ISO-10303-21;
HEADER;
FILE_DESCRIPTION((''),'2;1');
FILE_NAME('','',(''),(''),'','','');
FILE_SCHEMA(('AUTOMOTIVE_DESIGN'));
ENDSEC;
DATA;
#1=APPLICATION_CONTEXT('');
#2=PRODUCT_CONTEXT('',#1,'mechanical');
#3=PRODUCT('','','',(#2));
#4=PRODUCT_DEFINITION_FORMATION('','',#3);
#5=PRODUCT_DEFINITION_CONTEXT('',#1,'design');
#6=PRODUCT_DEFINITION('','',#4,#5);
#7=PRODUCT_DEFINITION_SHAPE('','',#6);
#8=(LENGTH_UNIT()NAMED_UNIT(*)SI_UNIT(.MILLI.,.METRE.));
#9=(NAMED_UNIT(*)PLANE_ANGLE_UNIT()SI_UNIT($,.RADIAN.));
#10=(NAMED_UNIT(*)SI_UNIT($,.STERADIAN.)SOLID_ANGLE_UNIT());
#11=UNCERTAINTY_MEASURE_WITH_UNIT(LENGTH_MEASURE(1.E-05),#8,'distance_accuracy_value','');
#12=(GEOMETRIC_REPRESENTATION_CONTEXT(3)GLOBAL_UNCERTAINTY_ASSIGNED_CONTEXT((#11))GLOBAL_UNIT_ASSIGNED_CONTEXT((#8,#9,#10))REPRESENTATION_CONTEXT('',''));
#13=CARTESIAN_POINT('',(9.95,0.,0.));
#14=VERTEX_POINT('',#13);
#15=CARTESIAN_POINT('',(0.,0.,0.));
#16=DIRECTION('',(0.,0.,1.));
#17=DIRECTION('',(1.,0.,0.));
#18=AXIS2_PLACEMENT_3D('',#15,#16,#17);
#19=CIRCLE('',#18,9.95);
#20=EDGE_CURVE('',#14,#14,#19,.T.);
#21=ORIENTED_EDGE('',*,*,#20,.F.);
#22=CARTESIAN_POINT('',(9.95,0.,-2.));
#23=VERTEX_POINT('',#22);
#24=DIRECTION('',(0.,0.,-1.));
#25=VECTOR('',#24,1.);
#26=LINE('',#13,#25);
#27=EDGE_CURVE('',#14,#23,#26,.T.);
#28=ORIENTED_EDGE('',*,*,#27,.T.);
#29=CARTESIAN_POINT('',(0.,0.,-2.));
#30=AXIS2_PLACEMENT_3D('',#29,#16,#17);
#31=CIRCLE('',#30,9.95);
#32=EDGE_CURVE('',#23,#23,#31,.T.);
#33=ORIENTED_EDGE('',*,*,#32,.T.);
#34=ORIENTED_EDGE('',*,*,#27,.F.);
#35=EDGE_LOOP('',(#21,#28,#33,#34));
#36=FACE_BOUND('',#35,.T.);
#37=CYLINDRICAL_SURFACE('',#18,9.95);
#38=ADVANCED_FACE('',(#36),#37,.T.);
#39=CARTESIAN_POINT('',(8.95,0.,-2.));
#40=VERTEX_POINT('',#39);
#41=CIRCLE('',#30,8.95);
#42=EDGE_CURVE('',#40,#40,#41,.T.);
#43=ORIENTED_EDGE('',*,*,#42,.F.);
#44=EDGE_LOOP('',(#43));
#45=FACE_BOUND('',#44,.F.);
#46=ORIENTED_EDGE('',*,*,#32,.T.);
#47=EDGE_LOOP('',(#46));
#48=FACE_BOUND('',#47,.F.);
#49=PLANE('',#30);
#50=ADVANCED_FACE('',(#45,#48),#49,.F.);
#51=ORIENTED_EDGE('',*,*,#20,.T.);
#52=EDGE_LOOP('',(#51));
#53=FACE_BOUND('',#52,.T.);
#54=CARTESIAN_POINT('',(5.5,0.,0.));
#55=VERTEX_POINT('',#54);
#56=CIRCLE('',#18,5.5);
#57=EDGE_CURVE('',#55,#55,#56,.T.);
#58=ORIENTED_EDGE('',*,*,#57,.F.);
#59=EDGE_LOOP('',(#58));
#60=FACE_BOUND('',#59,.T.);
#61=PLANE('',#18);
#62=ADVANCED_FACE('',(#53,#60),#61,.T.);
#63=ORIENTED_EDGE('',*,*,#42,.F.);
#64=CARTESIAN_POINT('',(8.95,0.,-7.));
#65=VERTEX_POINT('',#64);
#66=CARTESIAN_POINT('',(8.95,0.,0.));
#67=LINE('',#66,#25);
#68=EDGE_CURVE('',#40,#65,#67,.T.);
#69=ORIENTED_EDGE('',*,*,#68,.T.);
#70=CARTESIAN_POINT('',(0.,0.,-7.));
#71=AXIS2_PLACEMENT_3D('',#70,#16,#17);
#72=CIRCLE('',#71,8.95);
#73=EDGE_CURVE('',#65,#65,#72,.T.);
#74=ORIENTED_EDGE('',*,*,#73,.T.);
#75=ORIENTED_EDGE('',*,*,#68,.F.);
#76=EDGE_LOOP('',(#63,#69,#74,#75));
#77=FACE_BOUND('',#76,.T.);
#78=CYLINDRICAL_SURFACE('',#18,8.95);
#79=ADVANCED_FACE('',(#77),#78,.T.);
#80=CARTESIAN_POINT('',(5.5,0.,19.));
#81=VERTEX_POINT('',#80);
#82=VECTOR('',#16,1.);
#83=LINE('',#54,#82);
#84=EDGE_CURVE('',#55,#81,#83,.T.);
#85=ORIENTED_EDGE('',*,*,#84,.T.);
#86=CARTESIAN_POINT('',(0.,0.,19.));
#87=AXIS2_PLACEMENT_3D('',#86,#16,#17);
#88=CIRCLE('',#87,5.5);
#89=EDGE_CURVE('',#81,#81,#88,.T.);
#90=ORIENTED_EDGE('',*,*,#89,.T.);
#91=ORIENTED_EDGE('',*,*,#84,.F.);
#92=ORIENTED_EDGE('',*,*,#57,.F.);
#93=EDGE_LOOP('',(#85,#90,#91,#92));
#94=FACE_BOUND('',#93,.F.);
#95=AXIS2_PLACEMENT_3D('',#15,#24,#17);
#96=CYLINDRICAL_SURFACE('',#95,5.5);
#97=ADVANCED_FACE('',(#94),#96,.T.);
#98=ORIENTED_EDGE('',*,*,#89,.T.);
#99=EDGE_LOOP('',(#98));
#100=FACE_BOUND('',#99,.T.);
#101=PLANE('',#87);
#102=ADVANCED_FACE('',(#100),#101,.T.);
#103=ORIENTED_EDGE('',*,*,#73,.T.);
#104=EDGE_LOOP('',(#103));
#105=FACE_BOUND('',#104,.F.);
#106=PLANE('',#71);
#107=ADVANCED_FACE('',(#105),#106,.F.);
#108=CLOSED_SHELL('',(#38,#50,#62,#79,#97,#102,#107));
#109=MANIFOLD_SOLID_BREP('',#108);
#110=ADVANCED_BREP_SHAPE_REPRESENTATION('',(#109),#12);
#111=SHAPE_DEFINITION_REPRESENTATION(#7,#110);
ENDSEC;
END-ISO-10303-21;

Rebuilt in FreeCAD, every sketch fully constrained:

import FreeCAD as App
import Part
import Sketcher
from FreeCAD import Vector
Q = App.Units.Quantity

doc = App.newDocument("Part")
params = doc.addObject("Spreadsheet::Sheet", "Params")
for row, (alias, value) in enumerate([
    ("sketch1_diameter", "11 mm"),
    ("pad1_length", "19 mm"),
    ("sketch2_diameter", "19.9 mm"),
    ("pad2_length", "2 mm"),
    ("sketch3_diameter", "17.9 mm"),
    ("pad3_length", "7 mm"),
], start=1):
    params.set(f"A{row}", alias)
    params.set(f"B{row}", "=" + value)
    params.setAlias(f"B{row}", alias)

body = doc.addObject("PartDesign::Body", "Body")

sketch1 = body.newObject("Sketcher::SketchObject", "Sketch")
sketch1.AttachmentSupport = (doc.getObject("XY_Plane"), [""])
sketch1.MapMode = "FlatFace"
sketch1.addGeometry(Part.Circle(Vector(0, 0, 0), Vector(0, 0, 1), 6), False)
sketch1.addConstraint(Sketcher.Constraint("Coincident", 0, 3, -1, 1))
sketch1.addConstraint(Sketcher.Constraint("Diameter", 0, Q("11 mm")))
sketch1.setExpression("Constraints[1]", "Params.sketch1_diameter")
pad1 = body.newObject("PartDesign::Pad", "Pad")
pad1.Profile = sketch1
pad1.setExpression("Length", "Params.pad1_length")

sketch2 = body.newObject("Sketcher::SketchObject", "Sketch001")
sketch2.AttachmentSupport = (doc.getObject("XY_Plane"), [""])
sketch2.MapMode = "FlatFace"
sketch2.addGeometry(Part.Circle(Vector(0, 0, 0), Vector(0, 0, 1), 10), False)
sketch2.addConstraint(Sketcher.Constraint("Coincident", 0, 3, -1, 1))
sketch2.addConstraint(Sketcher.Constraint("Diameter", 0, Q("19.9 mm")))
sketch2.setExpression("Constraints[1]", "Params.sketch2_diameter")
pad2 = body.newObject("PartDesign::Pad", "Pad001")
pad2.Profile = sketch2
pad2.setExpression("Length", "Params.pad2_length")
pad2.Reversed = True

sketch3 = body.newObject("Sketcher::SketchObject", "Sketch002")
sketch3.AttachmentSupport = (doc.getObject("XY_Plane"), [""])
sketch3.MapMode = "FlatFace"
sketch3.addGeometry(Part.Circle(Vector(0, 0, 0), Vector(0, 0, 1), 9), False)
sketch3.addConstraint(Sketcher.Constraint("Coincident", 0, 3, -1, 1))
sketch3.addConstraint(Sketcher.Constraint("Diameter", 0, Q("17.9 mm")))
sketch3.setExpression("Constraints[1]", "Params.sketch3_diameter")
pad3 = body.newObject("PartDesign::Pad", "Pad002")
pad3.Profile = sketch3
pad3.setExpression("Length", "Params.pad3_length")
pad3.Reversed = True

doc.recompute()
